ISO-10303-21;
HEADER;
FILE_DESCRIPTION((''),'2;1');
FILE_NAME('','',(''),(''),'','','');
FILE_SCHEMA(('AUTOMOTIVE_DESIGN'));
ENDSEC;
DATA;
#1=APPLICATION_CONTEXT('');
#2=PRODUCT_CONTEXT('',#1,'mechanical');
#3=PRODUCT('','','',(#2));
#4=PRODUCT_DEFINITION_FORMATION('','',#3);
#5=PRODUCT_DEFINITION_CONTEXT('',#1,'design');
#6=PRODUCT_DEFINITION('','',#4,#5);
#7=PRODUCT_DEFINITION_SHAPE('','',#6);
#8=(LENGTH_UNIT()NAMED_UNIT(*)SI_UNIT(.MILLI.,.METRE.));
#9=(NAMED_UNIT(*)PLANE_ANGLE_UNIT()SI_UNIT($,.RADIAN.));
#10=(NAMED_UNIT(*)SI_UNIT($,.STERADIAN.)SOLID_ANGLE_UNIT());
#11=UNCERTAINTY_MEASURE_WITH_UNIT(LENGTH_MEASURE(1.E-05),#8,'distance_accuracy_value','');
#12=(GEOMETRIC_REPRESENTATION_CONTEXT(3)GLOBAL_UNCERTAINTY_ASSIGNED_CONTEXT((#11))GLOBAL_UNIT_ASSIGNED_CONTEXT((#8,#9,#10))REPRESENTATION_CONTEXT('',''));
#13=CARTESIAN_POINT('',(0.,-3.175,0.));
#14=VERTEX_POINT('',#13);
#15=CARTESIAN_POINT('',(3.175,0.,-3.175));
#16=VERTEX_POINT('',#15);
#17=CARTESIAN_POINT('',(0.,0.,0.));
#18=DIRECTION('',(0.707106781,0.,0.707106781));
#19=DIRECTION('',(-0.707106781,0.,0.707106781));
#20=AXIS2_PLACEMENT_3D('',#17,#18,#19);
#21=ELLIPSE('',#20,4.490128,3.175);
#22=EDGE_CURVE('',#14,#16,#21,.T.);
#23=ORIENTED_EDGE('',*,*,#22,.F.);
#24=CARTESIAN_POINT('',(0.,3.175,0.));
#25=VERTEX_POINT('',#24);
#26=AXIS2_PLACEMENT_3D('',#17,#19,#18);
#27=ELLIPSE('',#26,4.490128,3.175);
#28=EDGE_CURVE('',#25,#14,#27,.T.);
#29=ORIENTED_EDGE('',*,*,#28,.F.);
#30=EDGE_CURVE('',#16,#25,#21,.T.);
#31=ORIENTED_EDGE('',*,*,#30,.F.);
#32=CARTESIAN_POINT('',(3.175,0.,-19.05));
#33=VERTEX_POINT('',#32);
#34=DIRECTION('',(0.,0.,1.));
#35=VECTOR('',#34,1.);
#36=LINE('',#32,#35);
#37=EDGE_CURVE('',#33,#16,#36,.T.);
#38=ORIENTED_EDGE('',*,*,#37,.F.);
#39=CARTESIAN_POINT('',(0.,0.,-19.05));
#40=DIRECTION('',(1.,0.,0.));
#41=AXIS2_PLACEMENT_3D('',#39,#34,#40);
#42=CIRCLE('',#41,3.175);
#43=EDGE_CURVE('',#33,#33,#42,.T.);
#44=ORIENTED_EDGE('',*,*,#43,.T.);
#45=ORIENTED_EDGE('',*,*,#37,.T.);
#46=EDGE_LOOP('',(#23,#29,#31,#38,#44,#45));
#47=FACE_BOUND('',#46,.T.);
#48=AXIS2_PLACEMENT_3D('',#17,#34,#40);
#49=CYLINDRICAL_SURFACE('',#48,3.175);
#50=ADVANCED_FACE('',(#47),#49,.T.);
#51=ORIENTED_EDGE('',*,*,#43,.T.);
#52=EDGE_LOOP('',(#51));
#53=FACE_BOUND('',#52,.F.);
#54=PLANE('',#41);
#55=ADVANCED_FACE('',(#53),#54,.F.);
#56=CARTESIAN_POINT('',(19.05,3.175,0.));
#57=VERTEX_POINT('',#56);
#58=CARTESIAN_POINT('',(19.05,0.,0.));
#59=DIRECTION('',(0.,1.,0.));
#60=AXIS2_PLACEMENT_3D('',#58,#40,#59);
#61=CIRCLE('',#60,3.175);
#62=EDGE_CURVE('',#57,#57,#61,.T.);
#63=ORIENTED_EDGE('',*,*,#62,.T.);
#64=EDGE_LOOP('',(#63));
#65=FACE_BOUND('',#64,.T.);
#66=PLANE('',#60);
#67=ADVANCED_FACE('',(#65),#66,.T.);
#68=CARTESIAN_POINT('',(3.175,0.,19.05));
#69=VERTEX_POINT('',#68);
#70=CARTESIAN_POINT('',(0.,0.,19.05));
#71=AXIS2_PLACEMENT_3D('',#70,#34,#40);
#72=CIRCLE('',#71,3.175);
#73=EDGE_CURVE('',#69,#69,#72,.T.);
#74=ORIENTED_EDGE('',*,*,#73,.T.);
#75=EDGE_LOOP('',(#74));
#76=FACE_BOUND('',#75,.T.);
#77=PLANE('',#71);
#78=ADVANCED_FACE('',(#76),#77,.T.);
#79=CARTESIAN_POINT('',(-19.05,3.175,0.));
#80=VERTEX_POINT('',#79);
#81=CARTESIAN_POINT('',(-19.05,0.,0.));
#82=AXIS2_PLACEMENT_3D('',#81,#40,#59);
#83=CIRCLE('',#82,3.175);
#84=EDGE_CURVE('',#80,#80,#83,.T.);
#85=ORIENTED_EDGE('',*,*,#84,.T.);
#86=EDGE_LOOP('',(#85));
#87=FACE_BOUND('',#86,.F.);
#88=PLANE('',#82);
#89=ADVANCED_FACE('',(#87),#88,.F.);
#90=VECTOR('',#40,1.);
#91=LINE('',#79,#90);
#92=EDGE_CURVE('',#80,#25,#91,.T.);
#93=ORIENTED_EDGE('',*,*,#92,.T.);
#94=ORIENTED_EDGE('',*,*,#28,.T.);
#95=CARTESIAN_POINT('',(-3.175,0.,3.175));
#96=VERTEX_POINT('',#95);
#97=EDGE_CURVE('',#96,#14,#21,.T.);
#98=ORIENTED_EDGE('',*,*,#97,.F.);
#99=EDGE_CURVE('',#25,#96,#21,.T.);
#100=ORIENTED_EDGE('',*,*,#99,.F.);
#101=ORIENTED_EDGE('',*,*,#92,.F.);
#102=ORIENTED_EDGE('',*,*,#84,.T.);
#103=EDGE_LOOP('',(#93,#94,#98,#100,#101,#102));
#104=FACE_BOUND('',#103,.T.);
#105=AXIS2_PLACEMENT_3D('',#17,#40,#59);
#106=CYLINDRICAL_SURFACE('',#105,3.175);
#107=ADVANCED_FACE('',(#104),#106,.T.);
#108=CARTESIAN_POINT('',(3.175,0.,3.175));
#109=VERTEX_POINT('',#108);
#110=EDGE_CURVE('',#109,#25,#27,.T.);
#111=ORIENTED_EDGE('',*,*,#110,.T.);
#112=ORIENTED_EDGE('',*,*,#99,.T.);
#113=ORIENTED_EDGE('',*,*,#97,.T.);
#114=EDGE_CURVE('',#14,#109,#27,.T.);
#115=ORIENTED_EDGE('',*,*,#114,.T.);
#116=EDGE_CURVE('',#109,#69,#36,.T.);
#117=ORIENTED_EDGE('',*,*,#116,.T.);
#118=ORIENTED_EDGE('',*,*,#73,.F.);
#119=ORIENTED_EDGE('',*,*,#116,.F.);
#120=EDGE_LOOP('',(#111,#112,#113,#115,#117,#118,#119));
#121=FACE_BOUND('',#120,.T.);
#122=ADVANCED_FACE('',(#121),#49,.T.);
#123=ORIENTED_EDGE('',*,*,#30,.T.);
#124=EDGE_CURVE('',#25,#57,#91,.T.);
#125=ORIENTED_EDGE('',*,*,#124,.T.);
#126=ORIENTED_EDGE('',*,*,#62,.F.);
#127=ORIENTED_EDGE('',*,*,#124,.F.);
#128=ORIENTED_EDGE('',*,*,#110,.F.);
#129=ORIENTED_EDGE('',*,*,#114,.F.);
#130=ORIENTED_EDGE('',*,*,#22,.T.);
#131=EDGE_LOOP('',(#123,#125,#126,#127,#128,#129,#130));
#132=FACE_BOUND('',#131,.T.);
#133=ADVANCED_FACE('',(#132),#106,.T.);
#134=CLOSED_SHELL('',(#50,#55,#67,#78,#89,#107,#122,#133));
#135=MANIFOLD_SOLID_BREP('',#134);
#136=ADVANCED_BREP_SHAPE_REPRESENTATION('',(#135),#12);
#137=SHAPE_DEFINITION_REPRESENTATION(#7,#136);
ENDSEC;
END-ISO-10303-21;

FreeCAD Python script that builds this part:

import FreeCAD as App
import Part
import Sketcher
Q = App.Units.Quantity

doc = App.newDocument("Part")
body = doc.addObject("PartDesign::Body", "Body")

sketch1 = body.newObject("Sketcher::SketchObject", "Sketch")
sketch1.AttachmentSupport = (doc.getObject("XY_Plane"), [""])
sketch1.MapMode = "FlatFace"
sketch1.addGeometry(Part.Circle(App.Vector(0, 0, 0), App.Vector(0, 0, 1), 3.2), False)
sketch1.addConstraint([
    Sketcher.Constraint("Coincident", 0, 3, -1, 1),
    Sketcher.Constraint("Diameter", 0, Q("0.25 in")),
])
pad1 = body.newObject("PartDesign::Pad", "Pad")
pad1.Profile = sketch1
pad1.Length = Q("1.5 in")
pad1.Midplane = True

sketch2 = body.newObject("Sketcher::SketchObject", "Sketch001")
sketch2.AttachmentSupport = (doc.getObject("YZ_Plane"), [""])
sketch2.MapMode = "FlatFace"
sketch2.addGeometry(Part.Circle(App.Vector(0, 0, 0), App.Vector(0, 0, 1), 3.2), False)
sketch2.addConstraint([
    Sketcher.Constraint("Coincident", 0, 3, -1, 1),
    Sketcher.Constraint("Diameter", 0, Q("0.25 in")),
])
pad2 = body.newObject("PartDesign::Pad", "Pad001")
pad2.Profile = sketch2
pad2.Length = Q("1.5 in")
pad2.Midplane = True

doc.recompute()
